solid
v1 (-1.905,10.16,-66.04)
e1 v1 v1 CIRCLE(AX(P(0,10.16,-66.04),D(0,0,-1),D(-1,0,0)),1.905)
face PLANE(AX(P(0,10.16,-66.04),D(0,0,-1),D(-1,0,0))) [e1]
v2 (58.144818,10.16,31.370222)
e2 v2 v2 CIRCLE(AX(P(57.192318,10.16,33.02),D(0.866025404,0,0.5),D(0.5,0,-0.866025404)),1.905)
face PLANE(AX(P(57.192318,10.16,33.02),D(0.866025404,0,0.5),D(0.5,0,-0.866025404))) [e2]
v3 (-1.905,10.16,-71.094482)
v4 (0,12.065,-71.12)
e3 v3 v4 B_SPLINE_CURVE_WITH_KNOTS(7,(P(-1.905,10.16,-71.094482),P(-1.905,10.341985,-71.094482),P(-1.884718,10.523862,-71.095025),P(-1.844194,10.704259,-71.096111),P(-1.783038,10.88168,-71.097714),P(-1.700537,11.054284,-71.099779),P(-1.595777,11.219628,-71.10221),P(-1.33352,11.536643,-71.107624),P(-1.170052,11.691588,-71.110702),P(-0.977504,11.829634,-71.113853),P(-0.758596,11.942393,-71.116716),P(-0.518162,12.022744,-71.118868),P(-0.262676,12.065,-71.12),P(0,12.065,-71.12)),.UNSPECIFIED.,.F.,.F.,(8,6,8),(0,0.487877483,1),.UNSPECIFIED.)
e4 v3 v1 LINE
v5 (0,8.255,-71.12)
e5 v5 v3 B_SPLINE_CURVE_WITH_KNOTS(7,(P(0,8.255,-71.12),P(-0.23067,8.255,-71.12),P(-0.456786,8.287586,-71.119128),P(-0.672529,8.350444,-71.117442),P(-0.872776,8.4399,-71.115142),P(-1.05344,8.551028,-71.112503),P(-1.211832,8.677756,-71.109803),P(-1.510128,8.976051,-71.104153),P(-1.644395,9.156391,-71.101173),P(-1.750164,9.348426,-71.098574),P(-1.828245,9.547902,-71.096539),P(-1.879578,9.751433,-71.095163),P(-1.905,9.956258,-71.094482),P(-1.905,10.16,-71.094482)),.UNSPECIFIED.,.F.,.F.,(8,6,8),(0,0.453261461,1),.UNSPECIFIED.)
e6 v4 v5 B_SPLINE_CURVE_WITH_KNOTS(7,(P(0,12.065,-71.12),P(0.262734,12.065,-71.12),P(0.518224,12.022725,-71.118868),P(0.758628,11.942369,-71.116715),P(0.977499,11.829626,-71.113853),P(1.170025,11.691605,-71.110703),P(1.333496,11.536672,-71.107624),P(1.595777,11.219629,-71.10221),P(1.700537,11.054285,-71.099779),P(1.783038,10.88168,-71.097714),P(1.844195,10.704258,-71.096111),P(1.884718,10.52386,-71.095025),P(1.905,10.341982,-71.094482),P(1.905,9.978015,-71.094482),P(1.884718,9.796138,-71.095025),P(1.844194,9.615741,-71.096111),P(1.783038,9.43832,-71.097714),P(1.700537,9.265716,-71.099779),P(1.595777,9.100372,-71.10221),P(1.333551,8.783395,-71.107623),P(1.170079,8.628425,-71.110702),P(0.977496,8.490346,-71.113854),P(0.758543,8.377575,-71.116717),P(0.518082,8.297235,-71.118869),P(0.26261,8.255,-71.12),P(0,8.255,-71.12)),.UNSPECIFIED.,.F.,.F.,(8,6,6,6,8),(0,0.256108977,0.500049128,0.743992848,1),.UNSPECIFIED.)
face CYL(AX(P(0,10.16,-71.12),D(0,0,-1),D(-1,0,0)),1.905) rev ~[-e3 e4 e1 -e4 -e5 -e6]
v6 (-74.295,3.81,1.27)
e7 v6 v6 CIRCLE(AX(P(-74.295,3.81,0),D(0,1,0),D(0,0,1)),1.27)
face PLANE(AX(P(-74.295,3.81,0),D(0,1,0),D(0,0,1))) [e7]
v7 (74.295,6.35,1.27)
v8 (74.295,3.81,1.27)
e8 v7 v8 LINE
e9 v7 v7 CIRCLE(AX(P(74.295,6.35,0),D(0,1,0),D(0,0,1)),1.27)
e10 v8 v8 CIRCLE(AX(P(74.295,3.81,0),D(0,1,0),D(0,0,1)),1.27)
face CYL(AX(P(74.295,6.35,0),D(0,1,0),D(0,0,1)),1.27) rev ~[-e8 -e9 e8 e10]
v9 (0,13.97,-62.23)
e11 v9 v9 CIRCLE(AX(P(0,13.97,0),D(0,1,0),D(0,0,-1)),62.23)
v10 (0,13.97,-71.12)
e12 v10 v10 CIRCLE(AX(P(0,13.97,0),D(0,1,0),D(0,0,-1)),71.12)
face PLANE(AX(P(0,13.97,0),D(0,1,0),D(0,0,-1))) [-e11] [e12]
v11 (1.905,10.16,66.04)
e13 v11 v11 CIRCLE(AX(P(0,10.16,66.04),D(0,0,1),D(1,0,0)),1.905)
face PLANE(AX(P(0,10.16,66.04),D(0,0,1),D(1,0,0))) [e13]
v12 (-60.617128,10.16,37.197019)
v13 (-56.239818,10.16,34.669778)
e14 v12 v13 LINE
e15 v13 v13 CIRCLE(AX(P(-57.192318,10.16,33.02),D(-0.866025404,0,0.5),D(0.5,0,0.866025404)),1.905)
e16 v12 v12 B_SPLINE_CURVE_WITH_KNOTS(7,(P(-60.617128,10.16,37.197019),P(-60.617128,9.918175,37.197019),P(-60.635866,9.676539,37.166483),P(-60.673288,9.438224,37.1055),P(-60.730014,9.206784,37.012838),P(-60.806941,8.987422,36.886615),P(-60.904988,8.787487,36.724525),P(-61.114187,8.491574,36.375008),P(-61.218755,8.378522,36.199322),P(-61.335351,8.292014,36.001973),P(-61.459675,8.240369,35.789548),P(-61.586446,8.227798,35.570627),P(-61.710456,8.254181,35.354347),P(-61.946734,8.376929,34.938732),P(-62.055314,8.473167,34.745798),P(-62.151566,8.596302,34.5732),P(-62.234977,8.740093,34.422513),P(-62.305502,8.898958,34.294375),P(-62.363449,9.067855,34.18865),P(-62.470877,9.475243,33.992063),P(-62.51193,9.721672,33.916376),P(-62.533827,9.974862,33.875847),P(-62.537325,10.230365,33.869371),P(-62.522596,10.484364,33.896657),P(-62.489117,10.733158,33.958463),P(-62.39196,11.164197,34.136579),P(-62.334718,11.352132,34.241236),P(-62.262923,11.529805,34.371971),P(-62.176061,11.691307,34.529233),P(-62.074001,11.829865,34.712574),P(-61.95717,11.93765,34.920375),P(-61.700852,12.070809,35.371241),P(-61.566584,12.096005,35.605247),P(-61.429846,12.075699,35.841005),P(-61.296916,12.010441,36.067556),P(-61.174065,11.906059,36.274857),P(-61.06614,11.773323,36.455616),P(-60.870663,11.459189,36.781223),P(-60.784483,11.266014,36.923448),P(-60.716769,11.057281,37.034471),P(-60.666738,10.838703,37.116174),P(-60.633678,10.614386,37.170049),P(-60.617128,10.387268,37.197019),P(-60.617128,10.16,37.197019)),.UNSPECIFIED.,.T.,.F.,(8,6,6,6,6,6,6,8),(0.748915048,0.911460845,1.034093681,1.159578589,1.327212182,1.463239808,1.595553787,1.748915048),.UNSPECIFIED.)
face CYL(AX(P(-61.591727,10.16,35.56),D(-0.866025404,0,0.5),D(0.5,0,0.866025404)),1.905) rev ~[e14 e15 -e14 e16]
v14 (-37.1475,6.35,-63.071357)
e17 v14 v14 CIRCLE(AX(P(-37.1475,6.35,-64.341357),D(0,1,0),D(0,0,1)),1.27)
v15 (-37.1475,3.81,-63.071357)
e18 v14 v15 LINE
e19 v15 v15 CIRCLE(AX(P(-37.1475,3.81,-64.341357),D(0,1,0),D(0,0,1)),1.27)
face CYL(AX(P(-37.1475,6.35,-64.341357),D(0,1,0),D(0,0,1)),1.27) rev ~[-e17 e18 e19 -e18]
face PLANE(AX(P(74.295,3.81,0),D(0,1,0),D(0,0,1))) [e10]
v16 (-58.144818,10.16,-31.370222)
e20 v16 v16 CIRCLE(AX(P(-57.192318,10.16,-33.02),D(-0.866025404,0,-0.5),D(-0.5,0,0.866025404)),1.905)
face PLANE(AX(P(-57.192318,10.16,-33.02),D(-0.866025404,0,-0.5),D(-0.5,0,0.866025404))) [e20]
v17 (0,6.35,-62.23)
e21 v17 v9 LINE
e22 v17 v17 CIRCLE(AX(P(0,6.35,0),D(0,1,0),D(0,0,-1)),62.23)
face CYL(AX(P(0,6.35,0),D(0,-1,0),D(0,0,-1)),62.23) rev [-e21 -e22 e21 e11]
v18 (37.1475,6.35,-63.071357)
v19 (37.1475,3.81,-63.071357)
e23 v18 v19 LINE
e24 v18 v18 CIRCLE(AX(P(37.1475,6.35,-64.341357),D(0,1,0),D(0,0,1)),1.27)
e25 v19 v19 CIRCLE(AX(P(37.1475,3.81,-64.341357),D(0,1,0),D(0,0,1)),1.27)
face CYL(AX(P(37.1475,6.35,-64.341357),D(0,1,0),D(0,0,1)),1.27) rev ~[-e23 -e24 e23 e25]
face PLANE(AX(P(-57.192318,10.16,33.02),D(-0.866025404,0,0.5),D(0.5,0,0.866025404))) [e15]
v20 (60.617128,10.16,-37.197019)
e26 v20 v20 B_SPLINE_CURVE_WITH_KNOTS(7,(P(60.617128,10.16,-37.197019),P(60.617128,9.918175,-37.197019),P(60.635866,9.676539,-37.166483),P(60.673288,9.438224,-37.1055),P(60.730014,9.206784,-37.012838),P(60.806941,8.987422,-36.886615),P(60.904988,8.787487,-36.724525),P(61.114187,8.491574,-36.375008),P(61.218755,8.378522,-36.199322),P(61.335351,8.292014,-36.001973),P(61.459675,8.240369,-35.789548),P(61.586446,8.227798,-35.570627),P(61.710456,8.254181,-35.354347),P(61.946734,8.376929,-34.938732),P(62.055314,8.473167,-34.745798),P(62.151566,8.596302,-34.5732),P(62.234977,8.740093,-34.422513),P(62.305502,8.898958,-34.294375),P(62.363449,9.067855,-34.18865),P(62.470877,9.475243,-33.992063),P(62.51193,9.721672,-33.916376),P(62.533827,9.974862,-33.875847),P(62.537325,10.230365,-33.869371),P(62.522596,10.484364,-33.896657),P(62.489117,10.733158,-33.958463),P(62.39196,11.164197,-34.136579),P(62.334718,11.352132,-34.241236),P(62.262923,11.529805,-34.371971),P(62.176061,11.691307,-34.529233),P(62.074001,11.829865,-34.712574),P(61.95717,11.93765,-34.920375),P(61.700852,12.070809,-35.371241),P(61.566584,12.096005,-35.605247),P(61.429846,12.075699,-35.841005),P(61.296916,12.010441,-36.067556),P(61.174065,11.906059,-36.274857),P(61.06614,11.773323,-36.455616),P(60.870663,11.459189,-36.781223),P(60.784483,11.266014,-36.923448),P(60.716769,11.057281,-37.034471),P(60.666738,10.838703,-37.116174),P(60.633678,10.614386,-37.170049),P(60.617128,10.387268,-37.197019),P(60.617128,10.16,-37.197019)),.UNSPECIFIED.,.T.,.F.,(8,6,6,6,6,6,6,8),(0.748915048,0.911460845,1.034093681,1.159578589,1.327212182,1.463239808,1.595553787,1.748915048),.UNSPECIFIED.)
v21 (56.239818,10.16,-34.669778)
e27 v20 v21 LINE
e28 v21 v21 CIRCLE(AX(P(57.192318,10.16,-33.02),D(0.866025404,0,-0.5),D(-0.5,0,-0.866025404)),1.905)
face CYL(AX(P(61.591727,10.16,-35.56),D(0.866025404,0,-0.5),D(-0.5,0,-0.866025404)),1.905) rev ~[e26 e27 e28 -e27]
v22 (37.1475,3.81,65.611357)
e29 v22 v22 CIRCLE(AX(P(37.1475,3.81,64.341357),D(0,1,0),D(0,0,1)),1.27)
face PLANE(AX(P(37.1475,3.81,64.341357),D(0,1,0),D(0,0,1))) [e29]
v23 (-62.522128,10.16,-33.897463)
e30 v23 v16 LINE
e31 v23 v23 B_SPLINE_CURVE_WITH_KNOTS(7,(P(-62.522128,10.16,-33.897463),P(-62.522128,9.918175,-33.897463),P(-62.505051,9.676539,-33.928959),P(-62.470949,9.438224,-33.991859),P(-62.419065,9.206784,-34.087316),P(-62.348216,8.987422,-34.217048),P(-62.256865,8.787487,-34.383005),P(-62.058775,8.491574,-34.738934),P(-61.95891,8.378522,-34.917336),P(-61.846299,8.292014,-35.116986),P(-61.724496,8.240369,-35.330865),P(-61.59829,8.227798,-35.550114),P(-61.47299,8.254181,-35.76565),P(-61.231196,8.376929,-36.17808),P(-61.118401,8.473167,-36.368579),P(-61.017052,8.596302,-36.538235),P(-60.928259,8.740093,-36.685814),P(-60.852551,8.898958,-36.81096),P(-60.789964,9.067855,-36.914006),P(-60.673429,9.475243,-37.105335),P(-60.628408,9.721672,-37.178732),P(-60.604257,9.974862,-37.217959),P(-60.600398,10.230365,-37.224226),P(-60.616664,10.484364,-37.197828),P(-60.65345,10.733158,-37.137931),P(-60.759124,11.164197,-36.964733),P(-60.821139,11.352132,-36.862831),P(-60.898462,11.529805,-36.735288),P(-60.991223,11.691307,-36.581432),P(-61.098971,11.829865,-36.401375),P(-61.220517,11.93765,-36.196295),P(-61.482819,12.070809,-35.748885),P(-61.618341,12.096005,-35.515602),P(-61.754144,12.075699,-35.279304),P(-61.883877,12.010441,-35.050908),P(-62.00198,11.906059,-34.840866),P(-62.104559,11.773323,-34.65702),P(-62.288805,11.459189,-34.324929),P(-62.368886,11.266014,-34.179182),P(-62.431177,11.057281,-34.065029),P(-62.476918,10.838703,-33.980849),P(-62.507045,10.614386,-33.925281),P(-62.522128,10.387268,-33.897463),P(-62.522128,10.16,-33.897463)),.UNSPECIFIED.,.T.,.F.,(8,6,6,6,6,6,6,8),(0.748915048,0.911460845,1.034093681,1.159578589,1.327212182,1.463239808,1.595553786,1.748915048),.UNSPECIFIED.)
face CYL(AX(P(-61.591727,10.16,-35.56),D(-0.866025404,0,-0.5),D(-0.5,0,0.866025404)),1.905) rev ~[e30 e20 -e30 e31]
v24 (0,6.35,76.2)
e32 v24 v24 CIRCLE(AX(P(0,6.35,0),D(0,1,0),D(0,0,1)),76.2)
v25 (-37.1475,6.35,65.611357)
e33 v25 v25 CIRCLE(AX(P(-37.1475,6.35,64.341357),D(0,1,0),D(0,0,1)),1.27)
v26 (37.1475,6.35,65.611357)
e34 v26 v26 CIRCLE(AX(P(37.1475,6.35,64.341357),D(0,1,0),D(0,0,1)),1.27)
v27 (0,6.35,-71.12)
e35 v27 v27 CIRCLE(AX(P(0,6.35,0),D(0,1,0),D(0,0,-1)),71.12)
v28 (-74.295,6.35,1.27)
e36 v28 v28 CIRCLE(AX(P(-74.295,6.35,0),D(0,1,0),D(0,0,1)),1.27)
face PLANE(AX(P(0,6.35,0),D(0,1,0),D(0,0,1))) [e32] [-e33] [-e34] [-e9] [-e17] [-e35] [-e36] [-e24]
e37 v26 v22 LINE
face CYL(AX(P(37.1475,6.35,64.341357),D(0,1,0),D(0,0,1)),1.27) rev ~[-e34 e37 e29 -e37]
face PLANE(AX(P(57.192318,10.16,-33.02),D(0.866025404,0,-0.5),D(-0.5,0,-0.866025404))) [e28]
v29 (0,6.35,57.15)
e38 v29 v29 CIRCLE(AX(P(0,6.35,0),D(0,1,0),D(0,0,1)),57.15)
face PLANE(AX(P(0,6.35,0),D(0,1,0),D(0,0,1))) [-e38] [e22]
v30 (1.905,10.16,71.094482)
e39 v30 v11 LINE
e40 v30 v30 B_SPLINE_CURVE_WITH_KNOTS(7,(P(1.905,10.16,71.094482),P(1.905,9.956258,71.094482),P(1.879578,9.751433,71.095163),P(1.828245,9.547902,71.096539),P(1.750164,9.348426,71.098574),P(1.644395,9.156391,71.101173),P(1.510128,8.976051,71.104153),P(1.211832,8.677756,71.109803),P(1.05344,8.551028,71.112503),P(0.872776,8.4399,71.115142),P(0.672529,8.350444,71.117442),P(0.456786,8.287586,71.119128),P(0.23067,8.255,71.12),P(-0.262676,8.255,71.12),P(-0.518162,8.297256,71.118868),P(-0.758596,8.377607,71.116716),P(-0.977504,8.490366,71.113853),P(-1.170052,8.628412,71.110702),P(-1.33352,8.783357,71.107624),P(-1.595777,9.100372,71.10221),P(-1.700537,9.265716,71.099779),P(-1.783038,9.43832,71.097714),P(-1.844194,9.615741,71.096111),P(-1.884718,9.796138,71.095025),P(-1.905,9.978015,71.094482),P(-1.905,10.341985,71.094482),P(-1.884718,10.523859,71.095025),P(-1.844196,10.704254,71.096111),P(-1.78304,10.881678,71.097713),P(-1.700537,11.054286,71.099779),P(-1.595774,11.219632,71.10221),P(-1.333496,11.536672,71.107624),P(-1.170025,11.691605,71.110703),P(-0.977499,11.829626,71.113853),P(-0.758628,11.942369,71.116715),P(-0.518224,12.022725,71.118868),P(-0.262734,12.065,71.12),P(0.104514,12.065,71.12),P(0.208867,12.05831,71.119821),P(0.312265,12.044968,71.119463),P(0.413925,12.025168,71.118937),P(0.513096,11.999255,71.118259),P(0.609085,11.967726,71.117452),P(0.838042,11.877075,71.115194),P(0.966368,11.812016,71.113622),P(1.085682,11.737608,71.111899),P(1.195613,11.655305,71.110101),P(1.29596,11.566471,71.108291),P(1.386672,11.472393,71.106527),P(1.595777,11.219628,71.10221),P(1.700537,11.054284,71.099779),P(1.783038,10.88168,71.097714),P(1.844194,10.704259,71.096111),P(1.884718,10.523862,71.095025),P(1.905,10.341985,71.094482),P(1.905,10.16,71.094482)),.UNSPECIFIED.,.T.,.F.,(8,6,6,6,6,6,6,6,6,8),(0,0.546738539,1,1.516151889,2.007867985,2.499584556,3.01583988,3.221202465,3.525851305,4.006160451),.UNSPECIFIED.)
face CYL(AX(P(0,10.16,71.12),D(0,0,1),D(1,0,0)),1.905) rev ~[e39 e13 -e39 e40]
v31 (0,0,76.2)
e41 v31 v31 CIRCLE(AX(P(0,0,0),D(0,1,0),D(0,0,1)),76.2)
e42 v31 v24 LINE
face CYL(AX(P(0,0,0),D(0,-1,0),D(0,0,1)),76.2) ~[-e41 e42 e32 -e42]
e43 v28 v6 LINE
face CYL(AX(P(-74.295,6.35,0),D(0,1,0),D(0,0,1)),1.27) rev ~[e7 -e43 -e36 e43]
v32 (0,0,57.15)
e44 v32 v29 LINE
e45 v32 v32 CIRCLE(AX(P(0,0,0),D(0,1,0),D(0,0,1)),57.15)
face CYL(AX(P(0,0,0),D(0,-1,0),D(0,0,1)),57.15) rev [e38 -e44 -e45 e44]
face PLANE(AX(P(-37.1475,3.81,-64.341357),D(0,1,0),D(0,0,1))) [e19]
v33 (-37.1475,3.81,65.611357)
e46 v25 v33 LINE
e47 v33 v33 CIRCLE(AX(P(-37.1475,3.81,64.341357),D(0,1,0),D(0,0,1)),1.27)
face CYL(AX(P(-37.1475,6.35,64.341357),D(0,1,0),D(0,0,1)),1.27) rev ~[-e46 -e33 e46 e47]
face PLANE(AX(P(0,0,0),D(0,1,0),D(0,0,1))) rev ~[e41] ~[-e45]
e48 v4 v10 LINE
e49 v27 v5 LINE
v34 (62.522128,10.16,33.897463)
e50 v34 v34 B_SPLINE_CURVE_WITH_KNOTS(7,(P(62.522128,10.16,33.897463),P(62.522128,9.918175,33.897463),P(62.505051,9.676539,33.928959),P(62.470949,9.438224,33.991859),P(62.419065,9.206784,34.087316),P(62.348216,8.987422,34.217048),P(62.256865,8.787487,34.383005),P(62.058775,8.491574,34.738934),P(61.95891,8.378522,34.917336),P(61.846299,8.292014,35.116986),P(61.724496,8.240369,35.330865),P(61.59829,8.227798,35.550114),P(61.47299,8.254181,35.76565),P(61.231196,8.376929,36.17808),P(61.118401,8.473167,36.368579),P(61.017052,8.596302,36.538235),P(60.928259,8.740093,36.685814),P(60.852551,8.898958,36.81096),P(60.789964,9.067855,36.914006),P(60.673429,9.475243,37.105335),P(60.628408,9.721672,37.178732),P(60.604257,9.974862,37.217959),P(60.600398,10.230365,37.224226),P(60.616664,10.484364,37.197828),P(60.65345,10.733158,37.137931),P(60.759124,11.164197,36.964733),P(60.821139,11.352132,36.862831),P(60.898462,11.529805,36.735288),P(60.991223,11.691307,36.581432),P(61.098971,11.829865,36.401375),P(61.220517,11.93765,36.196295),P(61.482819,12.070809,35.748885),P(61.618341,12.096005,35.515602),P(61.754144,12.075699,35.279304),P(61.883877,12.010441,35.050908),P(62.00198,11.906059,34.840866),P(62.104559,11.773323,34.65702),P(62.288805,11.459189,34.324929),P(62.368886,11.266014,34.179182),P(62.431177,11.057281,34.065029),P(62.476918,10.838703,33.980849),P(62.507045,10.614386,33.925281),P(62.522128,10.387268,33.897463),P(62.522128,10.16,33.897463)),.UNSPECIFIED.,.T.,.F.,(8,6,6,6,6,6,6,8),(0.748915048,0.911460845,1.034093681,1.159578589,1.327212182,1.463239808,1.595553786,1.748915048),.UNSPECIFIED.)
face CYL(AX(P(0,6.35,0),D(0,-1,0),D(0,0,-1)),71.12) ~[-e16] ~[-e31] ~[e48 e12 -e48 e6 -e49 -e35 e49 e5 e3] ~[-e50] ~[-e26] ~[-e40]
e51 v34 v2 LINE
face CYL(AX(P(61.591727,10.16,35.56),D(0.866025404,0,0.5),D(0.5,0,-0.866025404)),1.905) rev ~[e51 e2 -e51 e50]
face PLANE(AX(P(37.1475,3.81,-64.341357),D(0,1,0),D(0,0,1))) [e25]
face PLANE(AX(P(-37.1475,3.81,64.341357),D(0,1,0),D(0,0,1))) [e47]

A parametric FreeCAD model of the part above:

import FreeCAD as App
import Part
import Sketcher

V = App.Vector
Q = App.Units.Quantity

doc = App.newDocument("Part")
params = doc.addObject("Spreadsheet::Sheet", "Params")
for row, (alias, value) in enumerate([
    ("sketch1_diameter", "6 in"),
    ("sketch1_diameter2", "4.5 in"),
    ("pad1_length", "0.25 in"),
    ("sketch2_diameter", "5.6 in"),
    ("sketch2_diameter2", "4.9 in"),
    ("pad2_length", "0.3 in"),
    ("sketch3_diameter", "0.15 in"),
    ("pocket1_length", "0.2 in"),
    ("sketch4_diameter", "0.1 in"),
    ("pocket2_length", "0.1 in"),
], start=1):
    params.set(f"A{row}", alias)
    params.set(f"B{row}", "=" + value)
    params.setAlias(f"B{row}", alias)

body = doc.addObject("PartDesign::Body", "Body")

# Sketch on XZ plane
sketch1 = body.newObject("Sketcher::SketchObject", "Sketch")
sketch1.AttachmentSupport = (doc.getObject("XZ_Plane"), [""])
sketch1.MapMode = "FlatFace"
sketch1.addGeometry([
    Part.Circle(V(0, 0, 0), V(0, 0, 1), 76),
    Part.Circle(V(0, 0, 0), V(0, 0, 1), 57),
], False)
sketch1.addConstraint([
    Sketcher.Constraint("Coincident", 0, 3, -1, 1),
    Sketcher.Constraint("Coincident", 1, 3, -1, 1),
    Sketcher.Constraint("Diameter", 0, Q("6 in")),
    Sketcher.Constraint("Diameter", 1, Q("4.5 in")),
])
sketch1.setExpression("Constraints[2]", "Params.sketch1_diameter")
sketch1.setExpression("Constraints[3]", "Params.sketch1_diameter2")
pad1 = body.newObject("PartDesign::Pad", "Pad")
pad1.Profile = sketch1
pad1.setExpression("Length", "Params.pad1_length")
pad1.Reversed = True

# Sketch on XZ plane
sketch2 = body.newObject("Sketcher::SketchObject", "Sketch001")
sketch2.AttachmentSupport = (doc.getObject("XZ_Plane"), [""])
sketch2.MapMode = "FlatFace"
sketch2.AttachmentOffset = App.Placement(V(0, 0, -0.25 * 25.4), App.Rotation())
sketch2.addGeometry([
    Part.Circle(V(0, 0, 0), V(0, 0, 1), 71),
    Part.Circle(V(0, 0, 0), V(0, 0, 1), 62),
], False)
sketch2.addConstraint([
    Sketcher.Constraint("Coincident", 0, 3, -1, 1),
    Sketcher.Constraint("Coincident", 1, 3, -1, 1),
    Sketcher.Constraint("Diameter", 0, Q("5.6 in")),
    Sketcher.Constraint("Diameter", 1, Q("4.9 in")),
])
sketch2.setExpression("Constraints[2]", "Params.sketch2_diameter")
sketch2.setExpression("Constraints[3]", "Params.sketch2_diameter2")
pad2 = body.newObject("PartDesign::Pad", "Pad001")
pad2.Profile = sketch2
pad2.setExpression("Length", "Params.pad2_length")
pad2.Reversed = True

# Sketch on XY plane
sketch3 = body.newObject("Sketcher::SketchObject", "Sketch002")
sketch3.AttachmentSupport = (doc.getObject("XY_Plane"), [""])
sketch3.MapMode = "FlatFace"
sketch3.AttachmentOffset = App.Placement(V(0, 0, 2.8 * 25.4), App.Rotation())
sketch3.addGeometry(Part.Circle(V(0, 10.2, 0), V(0, 0, 1), 1.9), False)
sketch3.addConstraint([
    Sketcher.Constraint("PointOnObject", 0, 3, -2),
    Sketcher.Constraint("Diameter", 0, Q("0.15 in")),
    Sketcher.Constraint("DistanceY", -1, 1, 0, 3, Q("0.4 in")),
])
sketch3.setExpression("Constraints[1]", "Params.sketch3_diameter")
pocket1 = body.newObject("PartDesign::Pocket", "Pocket")
pocket1.Profile = sketch3
pocket1.setExpression("Length", "Params.pocket1_length")
doc.recompute()

polarpattern = body.newObject("PartDesign::PolarPattern", "PolarPattern")
polarpattern.Originals = [pocket1]
polarpattern.Axis = (doc.getObject("Y_Axis"), [""])
polarpattern.Angle = 360
polarpattern.Occurrences = 6
body.Tip = polarpattern

# Sketch on XZ plane
sketch4 = body.newObject("Sketcher::SketchObject", "Sketch003")
sketch4.AttachmentSupport = (doc.getObject("XZ_Plane"), [""])
sketch4.MapMode = "FlatFace"
sketch4.AttachmentOffset = App.Placement(V(0, 0, -0.25 * 25.4), App.Rotation())
sketch4.addGeometry([
    Part.Circle(V(37.1, -64.3, 0), V(0, 0, 1), 1.3),  # 0
    Part.Circle(V(74.3, 0, 0), V(0, 0, 1), 1.3),  # 1
    Part.Circle(V(37.1, 64.3, 0), V(0, 0, 1), 1.3),  # 2
    Part.Circle(V(-37.1, 64.3, 0), V(0, 0, 1), 1.3),  # 3
    Part.Circle(V(-74.3, 0, 0), V(0, 0, 1), 1.3),  # 4
    Part.Circle(V(-37.1, -64.3, 0), V(0, 0, 1), 1.3),  # 5
], False)
sketch4.addConstraint([
    Sketcher.Constraint("Equal", 0, 1),
    Sketcher.Constraint("Equal", 1, 2),
    Sketcher.Constraint("Equal", 2, 3),
    Sketcher.Constraint("Equal", 3, 4),
    Sketcher.Constraint("Equal", 4, 5),
    Sketcher.Constraint("Symmetric", 0, 3, 3, 3, -1, 1),
    Sketcher.Constraint("Symmetric", 1, 3, 4, 3, -1, 1),
    Sketcher.Constraint("Symmetric", 2, 3, 5, 3, -1, 1),
    Sketcher.Constraint("Symmetric", 2, 3, 3, 3, -2),
    Sketcher.Constraint("PointOnObject", 1, 3, -1),
    Sketcher.Constraint("Diameter", 0, Q("0.1 in")),
    Sketcher.Constraint("DistanceX", 4, 3, 1, 3, Q("5.85 in")),
    Sketcher.Constraint("DistanceX", 3, 3, 2, 3, Q("2.925 in")),
    Sketcher.Constraint("DistanceY", 0, 3, -1, 1, 64.341357),
])
sketch4.setExpression("Constraints[10]", "Params.sketch4_diameter")
pocket2 = body.newObject("PartDesign::Pocket", "Pocket001")
pocket2.Profile = sketch4
pocket2.setExpression("Length", "Params.pocket2_length")
pocket2.Reversed = True

doc.recompute()
